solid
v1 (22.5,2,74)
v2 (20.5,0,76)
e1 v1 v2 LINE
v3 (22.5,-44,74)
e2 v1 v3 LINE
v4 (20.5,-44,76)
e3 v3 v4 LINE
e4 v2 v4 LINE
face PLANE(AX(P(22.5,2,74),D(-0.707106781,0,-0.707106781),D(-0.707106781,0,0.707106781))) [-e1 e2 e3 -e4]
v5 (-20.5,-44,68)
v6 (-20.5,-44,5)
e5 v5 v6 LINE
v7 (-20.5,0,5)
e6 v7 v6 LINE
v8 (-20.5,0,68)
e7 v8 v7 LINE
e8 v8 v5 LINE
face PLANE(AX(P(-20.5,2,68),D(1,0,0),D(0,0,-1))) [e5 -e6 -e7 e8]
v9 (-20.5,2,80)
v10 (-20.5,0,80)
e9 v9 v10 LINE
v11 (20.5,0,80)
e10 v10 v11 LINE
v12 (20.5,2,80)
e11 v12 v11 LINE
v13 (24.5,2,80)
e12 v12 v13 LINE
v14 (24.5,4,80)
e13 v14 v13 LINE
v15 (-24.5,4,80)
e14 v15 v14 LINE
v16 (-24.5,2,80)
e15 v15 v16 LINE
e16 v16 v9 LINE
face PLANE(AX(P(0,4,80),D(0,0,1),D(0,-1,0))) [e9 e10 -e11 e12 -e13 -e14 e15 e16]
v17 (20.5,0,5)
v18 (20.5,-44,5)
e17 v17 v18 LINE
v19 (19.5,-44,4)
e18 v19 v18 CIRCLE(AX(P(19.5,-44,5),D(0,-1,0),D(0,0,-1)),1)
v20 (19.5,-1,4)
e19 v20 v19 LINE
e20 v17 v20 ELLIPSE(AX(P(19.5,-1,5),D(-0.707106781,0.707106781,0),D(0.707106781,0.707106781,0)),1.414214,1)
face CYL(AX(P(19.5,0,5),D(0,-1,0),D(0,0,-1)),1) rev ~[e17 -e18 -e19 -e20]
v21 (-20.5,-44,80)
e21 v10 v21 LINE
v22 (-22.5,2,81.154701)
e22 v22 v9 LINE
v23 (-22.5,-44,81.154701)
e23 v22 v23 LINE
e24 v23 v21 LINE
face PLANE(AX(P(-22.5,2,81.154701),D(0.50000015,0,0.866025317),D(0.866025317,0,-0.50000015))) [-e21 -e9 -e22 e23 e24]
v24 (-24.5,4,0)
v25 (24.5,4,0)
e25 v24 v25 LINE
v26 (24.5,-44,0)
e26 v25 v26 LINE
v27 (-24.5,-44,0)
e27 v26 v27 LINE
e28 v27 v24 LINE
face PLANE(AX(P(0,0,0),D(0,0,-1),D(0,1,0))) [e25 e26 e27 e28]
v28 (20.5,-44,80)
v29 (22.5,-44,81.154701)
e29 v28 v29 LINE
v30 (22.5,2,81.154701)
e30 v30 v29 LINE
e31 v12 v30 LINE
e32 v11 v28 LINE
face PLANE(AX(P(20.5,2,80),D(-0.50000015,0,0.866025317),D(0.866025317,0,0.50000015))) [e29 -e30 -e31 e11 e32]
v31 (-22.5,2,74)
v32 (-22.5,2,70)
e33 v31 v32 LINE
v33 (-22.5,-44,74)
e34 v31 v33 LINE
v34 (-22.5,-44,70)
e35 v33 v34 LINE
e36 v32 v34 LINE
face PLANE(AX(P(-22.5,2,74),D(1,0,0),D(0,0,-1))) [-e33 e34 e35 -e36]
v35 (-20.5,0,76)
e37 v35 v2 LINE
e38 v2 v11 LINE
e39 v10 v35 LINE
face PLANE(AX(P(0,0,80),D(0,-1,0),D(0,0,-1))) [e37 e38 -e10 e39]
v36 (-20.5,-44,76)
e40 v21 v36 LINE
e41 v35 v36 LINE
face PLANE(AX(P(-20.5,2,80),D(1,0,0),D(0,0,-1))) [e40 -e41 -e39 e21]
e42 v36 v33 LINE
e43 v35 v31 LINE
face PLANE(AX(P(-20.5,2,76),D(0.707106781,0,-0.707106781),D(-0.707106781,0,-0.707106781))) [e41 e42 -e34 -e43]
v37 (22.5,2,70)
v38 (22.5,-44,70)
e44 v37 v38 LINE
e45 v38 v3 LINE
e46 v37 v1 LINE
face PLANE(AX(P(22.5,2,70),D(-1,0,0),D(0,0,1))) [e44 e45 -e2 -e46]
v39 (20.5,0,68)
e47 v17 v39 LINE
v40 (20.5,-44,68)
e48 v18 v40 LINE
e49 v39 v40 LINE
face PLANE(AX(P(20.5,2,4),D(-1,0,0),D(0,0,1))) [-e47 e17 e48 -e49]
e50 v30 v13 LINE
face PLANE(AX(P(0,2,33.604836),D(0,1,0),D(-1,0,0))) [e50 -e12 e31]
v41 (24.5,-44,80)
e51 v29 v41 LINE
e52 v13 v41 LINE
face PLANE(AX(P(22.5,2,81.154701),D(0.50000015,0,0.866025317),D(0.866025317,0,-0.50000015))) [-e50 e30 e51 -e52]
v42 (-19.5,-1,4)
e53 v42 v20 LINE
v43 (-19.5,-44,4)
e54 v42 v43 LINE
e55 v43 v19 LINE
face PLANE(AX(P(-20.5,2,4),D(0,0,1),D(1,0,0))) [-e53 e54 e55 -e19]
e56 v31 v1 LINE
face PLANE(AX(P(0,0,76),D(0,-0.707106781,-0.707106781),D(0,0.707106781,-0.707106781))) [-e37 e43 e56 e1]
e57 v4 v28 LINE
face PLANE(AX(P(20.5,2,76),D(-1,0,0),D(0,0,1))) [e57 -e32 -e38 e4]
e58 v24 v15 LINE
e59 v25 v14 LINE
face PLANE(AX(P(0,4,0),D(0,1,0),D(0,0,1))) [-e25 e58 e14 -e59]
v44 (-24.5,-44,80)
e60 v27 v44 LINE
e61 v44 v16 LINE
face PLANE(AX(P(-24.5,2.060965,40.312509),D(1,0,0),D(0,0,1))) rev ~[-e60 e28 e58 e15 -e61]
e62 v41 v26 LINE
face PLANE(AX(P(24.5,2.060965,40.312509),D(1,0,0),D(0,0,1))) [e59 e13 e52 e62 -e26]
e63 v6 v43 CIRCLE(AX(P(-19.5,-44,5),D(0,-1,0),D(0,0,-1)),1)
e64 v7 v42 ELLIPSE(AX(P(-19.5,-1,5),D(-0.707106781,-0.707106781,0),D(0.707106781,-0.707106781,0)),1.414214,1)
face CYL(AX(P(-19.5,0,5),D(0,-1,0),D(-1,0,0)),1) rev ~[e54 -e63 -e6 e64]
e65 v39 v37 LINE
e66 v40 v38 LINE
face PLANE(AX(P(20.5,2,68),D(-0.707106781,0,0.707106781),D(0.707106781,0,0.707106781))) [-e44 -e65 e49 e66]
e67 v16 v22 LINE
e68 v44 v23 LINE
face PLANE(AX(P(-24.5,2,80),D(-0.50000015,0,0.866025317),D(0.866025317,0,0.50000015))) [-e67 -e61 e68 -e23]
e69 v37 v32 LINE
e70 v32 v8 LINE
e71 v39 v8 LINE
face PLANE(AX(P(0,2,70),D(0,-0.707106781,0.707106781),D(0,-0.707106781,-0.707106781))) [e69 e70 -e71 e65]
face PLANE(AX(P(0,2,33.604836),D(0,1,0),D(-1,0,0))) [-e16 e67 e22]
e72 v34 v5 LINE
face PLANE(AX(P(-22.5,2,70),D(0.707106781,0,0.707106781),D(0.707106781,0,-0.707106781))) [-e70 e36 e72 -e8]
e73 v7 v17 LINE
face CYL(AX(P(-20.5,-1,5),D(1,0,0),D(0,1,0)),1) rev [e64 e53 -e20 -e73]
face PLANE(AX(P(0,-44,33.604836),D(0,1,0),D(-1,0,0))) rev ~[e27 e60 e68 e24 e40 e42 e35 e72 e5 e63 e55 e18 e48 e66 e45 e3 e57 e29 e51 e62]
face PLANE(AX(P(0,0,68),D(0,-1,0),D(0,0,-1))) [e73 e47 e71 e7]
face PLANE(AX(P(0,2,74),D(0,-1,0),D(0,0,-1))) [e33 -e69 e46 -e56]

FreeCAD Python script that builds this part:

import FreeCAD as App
import Part
import Sketcher

V = App.Vector
Q = App.Units.Quantity


def edges_at(feature, points):
    """Names of the edges that pass closest to the given points."""
    edges = feature.Shape.Edges
    near = lambda p: min(range(len(edges)), key=lambda i: edges[i].distToShape(Part.Vertex(*p))[0])
    return sorted({f"Edge{near(p) + 1}" for p in points})


def add_polygon(sketch, points):
    """Adds a closed chain of lines whose ends are joined by coincident constraints."""
    first, n = sketch.GeometryCount, len(points)
    for a, b in zip(points, points[1:] + points[:1]):
        sketch.addGeometry(Part.LineSegment(App.Vector(*a, 0), App.Vector(*b, 0)), False)
    for i in range(n):
        sketch.addConstraint(Sketcher.Constraint("Coincident", first + i, 2, first + (i + 1) % n, 1))

doc = App.newDocument("Part")
body = doc.addObject("PartDesign::Body", "Body")

sketch1 = doc.addObject("Sketcher::SketchObject", "Sketch")
body.addObject(sketch1)
sketch1.AttachmentSupport = (doc.YZ_Plane, [""])
sketch1.MapMode = "FlatFace"
add_polygon(sketch1, [(0, 0), (4, 0), (4, 80), (0, 80), (0, 76), (2, 74), (2, 70), (0, 68)])
sketch1.addConstraint([
    Sketcher.Constraint("Horizontal", 0),
    Sketcher.Constraint("Vertical", 1),
    Sketcher.Constraint("Horizontal", 2),
    Sketcher.Constraint("Vertical", 3),
    Sketcher.Constraint("Vertical", 5),
    Sketcher.Constraint("Vertical", 7),
    Sketcher.Constraint("Coincident", 7, 2, -1, 1),
    Sketcher.Constraint("PointOnObject", 2, 2, -2),
    Sketcher.Constraint("Perpendicular", 4, 6),
    Sketcher.Constraint("Equal", 2, 3),
    Sketcher.Constraint("Equal", 3, 5),
    Sketcher.Constraint("Equal", 4, 6),
    Sketcher.Constraint("DistanceX", 0, 1, 0, 2, 4.0),
    Sketcher.Constraint("DistanceY", 1, 1, 1, 2, 80.0),
    Sketcher.Constraint("DistanceY", 7, 2, 7, 1, 68.0),
])
pad1 = doc.addObject("PartDesign::Pad", "Pad")
body.addObject(pad1)
pad1.Profile = sketch1
pad1.Length = 49
pad1.Midplane = True
body2 = doc.addObject("PartDesign::Body", "Body001")

sketch2 = doc.addObject("Sketcher::SketchObject", "Sketch001")
body2.addObject(sketch2)
sketch2.AttachmentSupport = (doc.getObject("XZ_Plane001"), [""])
sketch2.MapMode = "FlatFace"
add_polygon(sketch2, [(-24.5, 0), (24.5, 0), (24.5, 80), (22.5, 81.2), (20.5, 80), (20.5, 76), (22.5, 74), (22.5, 70), (20.5, 68), (20.5, 4), (-20.5, 4), (-20.5, 68), (-22.5, 70), (-22.5, 74), (-20.5, 76), (-20.5, 80), (-22.5, 81.2), (-24.5, 80)])
sketch2.addConstraint([
    Sketcher.Constraint("Horizontal", 0),
    Sketcher.Constraint("Vertical", 1),
    Sketcher.Constraint("Vertical", 4),
    Sketcher.Constraint("Vertical", 6),
    Sketcher.Constraint("Vertical", 8),
    Sketcher.Constraint("Horizontal", 9),
    Sketcher.Constraint("Vertical", 10),
    Sketcher.Constraint("Vertical", 12),
    Sketcher.Constraint("Vertical", 14),
    Sketcher.Constraint("Vertical", 17),
    Sketcher.Constraint("Symmetric", 0, 2, 17, 2, -1, 1),
    Sketcher.Constraint("Symmetric", 7, 2, 10, 2, -2),
    Sketcher.Constraint("Symmetric", 6, 2, 11, 2, -2),
    Sketcher.Constraint("Symmetric", 4, 2, 13, 2, -2),
    Sketcher.Constraint("Symmetric", 2, 2, 15, 2, -2),
    Sketcher.Constraint("Perpendicular", 5, 7),
    Sketcher.Constraint("Perpendicular", 7, 11),
    Sketcher.Constraint("Perpendicular", 11, 13),
    Sketcher.Constraint("Parallel", 2, 15),
    Sketcher.Constraint("Parallel", 3, 16),
    Sketcher.Constraint("Horizontal", 1, 2, 3, 2),
    Sketcher.Constraint("Horizontal", 3, 2, 14, 2),
    Sketcher.Constraint("Vertical", 2, 2, 5, 2),
    Sketcher.Constraint("Vertical", 4, 2, 7, 2),
    Sketcher.Constraint("Equal", 4, 6),
    Sketcher.Constraint("DistanceX", 0, 1, 0, 2, 49.0),
    Sketcher.Constraint("DistanceX", 9, 2, 9, 1, 41.0),
    Sketcher.Constraint("DistanceY", 1, 1, 1, 2, 80.0),
    Sketcher.Constraint("DistanceY", 4, 2, 4, 1, 4.0),
    Sketcher.Constraint("DistanceY", 8, 2, 8, 1, 64.0),
    Sketcher.Constraint("Angle", 2, Q("149.99999 deg")),
])
pad2 = doc.addObject("PartDesign::Pad", "Pad001")
body2.addObject(pad2)
pad2.Profile = sketch2
pad2.Length = 46
body3 = doc.addObject("PartDesign::Body", "Body002")
doc.recompute()

body2.Placement = App.Placement(V(0, 2, 0), App.Rotation(V(0, 0, 1), 0))
boolean = doc.addObject("PartDesign::Boolean", "Boolean")
body3.addObject(boolean)
boolean.Type = "Fuse"
boolean.addObjects([body2])
doc.recompute()

boolean2 = doc.addObject("PartDesign::Boolean", "Boolean001")
body3.addObject(boolean2)
boolean2.Type = "Fuse"
boolean2.addObjects([body])
doc.recompute()

fillet = doc.addObject("PartDesign::Fillet", "Fillet")
body3.addObject(fillet)
fillet.Base = (boolean2, edges_at(boolean2, [(-20.5, -22, 4), (0, 0, 4), (20.5, -22, 4)]))
fillet.Radius = 1

doc.recompute()
